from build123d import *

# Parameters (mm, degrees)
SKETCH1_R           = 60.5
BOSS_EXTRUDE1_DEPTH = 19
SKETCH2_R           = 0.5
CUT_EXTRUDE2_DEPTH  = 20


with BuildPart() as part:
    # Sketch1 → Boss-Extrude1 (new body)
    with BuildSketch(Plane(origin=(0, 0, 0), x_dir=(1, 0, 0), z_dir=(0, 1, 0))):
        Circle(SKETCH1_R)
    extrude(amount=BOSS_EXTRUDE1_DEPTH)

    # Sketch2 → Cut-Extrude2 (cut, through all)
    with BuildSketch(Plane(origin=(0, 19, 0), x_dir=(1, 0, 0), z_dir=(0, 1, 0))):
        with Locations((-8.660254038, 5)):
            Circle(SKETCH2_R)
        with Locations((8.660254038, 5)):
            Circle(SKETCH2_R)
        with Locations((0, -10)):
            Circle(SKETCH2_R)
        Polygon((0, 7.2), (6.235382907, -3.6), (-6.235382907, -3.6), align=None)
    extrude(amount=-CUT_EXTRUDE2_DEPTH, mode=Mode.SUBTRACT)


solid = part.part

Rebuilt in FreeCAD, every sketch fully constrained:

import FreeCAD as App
import Part
import Sketcher

V = App.Vector
Q = App.Units.Quantity

doc = App.newDocument("Part")
body = doc.addObject("PartDesign::Body", "Body")

# Sketch on XZ plane
sketch1 = doc.addObject("Sketcher::SketchObject", "Sketch")
body.addObject(sketch1)
sketch1.AttachmentSupport = (doc.XZ_Plane, [""])
sketch1.MapMode = "FlatFace"
sketch1.addGeometry(Part.Circle(V(0, 0, 0), V(0, 0, 1), 60), False)
sketch1.addConstraint(Sketcher.Constraint("Coincident", 0, 3, -1, 1))
sketch1.addConstraint(Sketcher.Constraint("Diameter", 0, Q("121 mm")))
pad1 = doc.addObject("PartDesign::Pad", "Pad")
body.addObject(pad1)
pad1.Profile = sketch1
pad1.Length = 19
pad1.Reversed = True

# Sketch on XZ plane
sketch2 = doc.addObject("Sketcher::SketchObject", "Sketch001")
body.addObject(sketch2)
sketch2.AttachmentSupport = (doc.XZ_Plane, [""])
sketch2.MapMode = "FlatFace"
sketch2.AttachmentOffset = App.Placement(V(0, 0, -19), App.Rotation())
sketch2.addGeometry(Part.Circle(V(-8.7, -5, 0), V(0, 0, 1), 0.5), False)
sketch2.addGeometry(Part.Circle(V(8.7, -5, 0), V(0, 0, 1), 0.5), False)
sketch2.addGeometry(Part.Circle(V(0, 10, 0), V(0, 0, 1), 0.5), False)
sketch2.addGeometry(Part.LineSegment(V(6.2, 3.6, 0), V(0, -7.2, 0)), False)
sketch2.addGeometry(Part.LineSegment(V(0, -7.2, 0), V(-6.2, 3.6, 0)), False)
sketch2.addGeometry(Part.LineSegment(V(-6.2, 3.6, 0), V(6.2, 3.6, 0)), False)
sketch2.addConstraint(Sketcher.Constraint("Coincident", 3, 2, 4, 1))
sketch2.addConstraint(Sketcher.Constraint("Coincident", 4, 2, 5, 1))
sketch2.addConstraint(Sketcher.Constraint("Coincident", 5, 2, 3, 1))
sketch2.addConstraint(Sketcher.Constraint("Horizontal", 5))
sketch2.addConstraint(Sketcher.Constraint("Equal", 0, 1))
sketch2.addConstraint(Sketcher.Constraint("Equal", 1, 2))
sketch2.addConstraint(Sketcher.Constraint("Symmetric", 0, 3, 1, 3, -2))
sketch2.addConstraint(Sketcher.Constraint("PointOnObject", 2, 3, -2))
sketch2.addConstraint(Sketcher.Constraint("PointOnObject", 3, 2, -2))
sketch2.addConstraint(Sketcher.Constraint("Equal", 3, 4))
sketch2.addConstraint(Sketcher.Constraint("Diameter", 0, Q("1 mm")))
sketch2.addConstraint(Sketcher.Constraint("Angle", 3, Q("-120 deg")))
sketch2.addConstraint(Sketcher.Constraint("DistanceY", 0, 3, -1, 1, Q("5 mm")))
sketch2.addConstraint(Sketcher.Constraint("DistanceY", -1, 1, 2, 3, Q("10 mm")))
sketch2.addConstraint(Sketcher.Constraint("DistanceY", 3, 2, -1, 1, Q("7.2 mm")))
sketch2.addConstraint(Sketcher.Constraint("DistanceY", -1, 1, 4, 2, Q("3.6 mm")))
sketch2.addConstraint(Sketcher.Constraint("DistanceX", 0, 3, 1, 3, Q("17.320508 mm")))
pocket1 = doc.addObject("PartDesign::Pocket", "Pocket")
body.addObject(pocket1)
pocket1.Profile = sketch2
pocket1.Type = "ThroughAll"
pocket1.Reversed = True

doc.recompute()
